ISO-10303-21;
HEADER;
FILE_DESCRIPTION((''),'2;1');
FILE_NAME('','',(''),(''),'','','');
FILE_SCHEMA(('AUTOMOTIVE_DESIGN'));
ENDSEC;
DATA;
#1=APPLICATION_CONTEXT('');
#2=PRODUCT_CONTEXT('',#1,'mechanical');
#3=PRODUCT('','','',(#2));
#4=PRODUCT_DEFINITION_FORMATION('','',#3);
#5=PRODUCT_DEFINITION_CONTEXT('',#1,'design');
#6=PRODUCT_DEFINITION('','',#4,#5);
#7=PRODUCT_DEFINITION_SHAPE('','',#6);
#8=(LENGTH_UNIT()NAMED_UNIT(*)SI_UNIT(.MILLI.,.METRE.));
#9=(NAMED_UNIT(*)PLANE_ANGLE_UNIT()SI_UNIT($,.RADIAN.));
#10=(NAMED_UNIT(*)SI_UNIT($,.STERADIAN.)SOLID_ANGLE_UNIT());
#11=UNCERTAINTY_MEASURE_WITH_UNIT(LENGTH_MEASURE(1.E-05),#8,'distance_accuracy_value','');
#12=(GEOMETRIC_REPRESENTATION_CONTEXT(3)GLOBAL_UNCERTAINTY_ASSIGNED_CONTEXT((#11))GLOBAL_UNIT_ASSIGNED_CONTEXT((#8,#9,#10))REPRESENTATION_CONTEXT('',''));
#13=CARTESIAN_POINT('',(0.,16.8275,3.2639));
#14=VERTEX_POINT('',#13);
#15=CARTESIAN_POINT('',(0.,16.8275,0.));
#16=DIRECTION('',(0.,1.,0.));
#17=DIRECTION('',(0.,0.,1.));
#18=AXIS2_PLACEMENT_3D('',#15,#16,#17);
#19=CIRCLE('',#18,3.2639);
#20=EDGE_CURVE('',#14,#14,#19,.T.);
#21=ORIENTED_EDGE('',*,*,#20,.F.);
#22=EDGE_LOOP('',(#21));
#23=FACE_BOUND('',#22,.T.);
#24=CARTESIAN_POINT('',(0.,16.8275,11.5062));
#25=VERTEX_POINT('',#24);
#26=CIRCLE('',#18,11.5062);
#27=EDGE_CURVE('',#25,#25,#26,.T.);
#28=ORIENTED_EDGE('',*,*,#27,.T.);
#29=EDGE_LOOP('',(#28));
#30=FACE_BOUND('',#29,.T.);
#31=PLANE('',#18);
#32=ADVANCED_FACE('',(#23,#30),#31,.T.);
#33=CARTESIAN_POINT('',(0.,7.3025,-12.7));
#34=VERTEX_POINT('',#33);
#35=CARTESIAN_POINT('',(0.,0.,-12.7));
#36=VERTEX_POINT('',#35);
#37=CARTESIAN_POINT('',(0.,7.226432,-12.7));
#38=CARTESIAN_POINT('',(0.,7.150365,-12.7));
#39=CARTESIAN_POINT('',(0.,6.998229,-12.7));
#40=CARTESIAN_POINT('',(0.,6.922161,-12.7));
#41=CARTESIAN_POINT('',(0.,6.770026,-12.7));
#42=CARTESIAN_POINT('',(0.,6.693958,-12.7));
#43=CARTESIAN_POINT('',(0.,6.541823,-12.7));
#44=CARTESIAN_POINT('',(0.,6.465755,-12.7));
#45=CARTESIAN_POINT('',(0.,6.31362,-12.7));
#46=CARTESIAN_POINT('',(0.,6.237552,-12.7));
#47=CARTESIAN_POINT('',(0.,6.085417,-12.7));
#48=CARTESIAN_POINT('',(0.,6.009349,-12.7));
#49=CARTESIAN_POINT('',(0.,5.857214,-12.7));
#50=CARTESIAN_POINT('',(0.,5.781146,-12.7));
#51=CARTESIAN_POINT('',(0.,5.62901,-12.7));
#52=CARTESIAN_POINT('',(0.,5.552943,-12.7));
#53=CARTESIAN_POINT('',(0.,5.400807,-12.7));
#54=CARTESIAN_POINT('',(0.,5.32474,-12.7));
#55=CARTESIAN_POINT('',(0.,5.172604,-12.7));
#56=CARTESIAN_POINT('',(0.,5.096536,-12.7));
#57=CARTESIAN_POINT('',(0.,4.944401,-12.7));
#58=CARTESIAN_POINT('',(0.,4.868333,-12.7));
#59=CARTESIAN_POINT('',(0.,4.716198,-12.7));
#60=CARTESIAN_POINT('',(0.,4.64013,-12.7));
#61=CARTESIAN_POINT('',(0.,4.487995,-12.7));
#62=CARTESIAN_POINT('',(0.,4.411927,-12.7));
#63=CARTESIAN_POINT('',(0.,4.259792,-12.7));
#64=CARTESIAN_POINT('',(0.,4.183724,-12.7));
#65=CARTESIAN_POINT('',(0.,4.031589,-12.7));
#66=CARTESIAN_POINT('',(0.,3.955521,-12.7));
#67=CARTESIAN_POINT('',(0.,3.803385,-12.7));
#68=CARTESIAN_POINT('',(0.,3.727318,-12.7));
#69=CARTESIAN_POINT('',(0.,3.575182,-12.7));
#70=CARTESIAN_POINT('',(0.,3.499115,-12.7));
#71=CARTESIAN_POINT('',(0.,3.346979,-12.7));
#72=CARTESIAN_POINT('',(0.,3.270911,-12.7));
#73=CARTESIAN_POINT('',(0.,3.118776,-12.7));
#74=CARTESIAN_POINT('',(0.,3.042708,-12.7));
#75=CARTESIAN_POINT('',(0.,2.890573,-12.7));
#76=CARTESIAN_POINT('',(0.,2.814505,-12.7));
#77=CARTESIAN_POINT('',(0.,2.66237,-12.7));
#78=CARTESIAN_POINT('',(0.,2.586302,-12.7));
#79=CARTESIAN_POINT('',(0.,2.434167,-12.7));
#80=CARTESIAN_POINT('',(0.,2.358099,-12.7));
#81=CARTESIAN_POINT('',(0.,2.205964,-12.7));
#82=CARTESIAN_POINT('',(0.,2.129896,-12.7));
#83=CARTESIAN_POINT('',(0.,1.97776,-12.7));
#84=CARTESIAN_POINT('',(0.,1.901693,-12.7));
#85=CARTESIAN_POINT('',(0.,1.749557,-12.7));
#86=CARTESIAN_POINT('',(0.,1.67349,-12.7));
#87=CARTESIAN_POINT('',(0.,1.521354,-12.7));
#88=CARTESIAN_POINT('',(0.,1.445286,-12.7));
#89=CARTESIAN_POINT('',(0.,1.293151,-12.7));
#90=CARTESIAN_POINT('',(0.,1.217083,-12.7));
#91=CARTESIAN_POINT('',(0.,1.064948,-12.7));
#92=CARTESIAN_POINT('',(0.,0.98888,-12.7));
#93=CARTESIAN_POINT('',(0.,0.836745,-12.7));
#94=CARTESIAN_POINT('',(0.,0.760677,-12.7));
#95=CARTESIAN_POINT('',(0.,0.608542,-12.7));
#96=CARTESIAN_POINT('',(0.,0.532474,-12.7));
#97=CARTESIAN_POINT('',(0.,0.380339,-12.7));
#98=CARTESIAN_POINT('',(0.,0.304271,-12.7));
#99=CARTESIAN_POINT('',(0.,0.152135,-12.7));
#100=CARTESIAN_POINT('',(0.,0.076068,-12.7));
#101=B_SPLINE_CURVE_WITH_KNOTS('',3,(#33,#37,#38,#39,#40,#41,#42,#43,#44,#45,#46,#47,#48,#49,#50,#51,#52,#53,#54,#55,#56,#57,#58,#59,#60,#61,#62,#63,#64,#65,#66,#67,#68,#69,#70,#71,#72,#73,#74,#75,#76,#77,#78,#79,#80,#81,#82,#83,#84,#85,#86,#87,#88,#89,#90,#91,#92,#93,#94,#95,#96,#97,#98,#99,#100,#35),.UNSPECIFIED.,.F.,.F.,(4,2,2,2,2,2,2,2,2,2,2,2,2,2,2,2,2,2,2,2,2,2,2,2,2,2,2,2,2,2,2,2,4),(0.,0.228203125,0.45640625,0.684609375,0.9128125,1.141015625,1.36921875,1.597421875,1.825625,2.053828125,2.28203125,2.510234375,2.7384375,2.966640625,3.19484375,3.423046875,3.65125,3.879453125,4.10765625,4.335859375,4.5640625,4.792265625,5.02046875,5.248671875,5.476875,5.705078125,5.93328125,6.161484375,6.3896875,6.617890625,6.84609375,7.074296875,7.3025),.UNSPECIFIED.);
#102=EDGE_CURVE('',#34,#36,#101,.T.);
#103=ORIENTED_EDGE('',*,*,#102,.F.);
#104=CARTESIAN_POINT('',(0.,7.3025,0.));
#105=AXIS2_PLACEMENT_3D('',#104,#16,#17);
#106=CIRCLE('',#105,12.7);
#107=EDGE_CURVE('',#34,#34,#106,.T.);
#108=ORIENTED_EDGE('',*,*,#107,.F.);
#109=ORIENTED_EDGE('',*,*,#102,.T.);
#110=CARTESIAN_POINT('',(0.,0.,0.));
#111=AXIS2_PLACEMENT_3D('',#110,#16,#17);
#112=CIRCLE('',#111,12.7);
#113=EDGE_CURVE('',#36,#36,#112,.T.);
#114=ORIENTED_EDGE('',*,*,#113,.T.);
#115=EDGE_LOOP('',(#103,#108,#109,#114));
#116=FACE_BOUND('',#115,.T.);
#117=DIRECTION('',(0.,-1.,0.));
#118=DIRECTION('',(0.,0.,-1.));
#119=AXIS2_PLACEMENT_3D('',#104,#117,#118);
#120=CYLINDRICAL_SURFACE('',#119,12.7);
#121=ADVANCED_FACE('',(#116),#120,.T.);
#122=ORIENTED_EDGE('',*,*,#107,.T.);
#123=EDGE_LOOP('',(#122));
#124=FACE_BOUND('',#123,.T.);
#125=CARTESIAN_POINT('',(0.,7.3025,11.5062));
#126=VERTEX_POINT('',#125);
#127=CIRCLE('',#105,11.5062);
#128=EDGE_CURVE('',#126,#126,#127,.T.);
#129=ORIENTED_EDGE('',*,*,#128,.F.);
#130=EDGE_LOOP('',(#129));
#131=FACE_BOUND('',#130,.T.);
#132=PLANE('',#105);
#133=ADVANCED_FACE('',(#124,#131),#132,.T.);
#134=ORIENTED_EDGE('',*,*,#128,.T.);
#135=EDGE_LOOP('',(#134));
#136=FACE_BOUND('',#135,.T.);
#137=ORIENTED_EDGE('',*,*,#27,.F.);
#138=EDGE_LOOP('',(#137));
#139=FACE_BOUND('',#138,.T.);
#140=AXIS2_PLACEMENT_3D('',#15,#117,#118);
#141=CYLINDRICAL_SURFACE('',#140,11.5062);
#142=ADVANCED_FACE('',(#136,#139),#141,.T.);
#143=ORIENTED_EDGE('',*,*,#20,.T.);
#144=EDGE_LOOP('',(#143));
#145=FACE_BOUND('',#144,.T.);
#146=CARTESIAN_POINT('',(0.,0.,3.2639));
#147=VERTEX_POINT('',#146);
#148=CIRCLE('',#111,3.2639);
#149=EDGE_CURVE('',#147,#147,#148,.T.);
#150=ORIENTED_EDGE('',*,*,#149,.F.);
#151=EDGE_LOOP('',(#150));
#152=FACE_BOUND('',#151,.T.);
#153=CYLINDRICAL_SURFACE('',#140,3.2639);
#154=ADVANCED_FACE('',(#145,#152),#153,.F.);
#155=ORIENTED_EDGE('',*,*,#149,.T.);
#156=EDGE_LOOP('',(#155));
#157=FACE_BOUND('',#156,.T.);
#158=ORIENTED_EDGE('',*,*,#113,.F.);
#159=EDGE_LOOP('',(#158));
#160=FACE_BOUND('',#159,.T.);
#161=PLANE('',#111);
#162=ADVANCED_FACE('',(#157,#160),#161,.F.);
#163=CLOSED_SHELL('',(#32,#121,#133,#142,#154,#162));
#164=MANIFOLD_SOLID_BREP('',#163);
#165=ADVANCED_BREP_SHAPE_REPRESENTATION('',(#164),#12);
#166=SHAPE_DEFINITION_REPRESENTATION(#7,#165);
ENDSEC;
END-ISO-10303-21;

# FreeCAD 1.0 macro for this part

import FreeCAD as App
import Part
import Sketcher

V = App.Vector
Q = App.Units.Quantity

doc = App.newDocument("Part")
body = doc.addObject("PartDesign::Body", "Body")

sketch1 = body.newObject("Sketcher::SketchObject", "Sketch")
sketch1.AttachmentSupport = (doc.getObject("XZ_Plane"), [""])
sketch1.MapMode = "FlatFace"
sketch1.addGeometry(Part.Circle(V(0, 0, 0), V(0, 0, 1), 11.5), False)
sketch1.addGeometry(Part.Circle(V(0, 0, 0), V(0, 0, 1), 3.3), False)
sketch1.addConstraint(Sketcher.Constraint("Coincident", 0, 3, -1, 1))
sketch1.addConstraint(Sketcher.Constraint("Coincident", 1, 3, -1, 1))
sketch1.addConstraint(Sketcher.Constraint("Diameter", 0, Q("0.906 in")))
sketch1.addConstraint(Sketcher.Constraint("Diameter", 1, Q("0.257 in")))
pad1 = body.newObject("PartDesign::Pad", "Pad")
pad1.Profile = sketch1
pad1.Length = Q("0.6625 in")
pad1.Reversed = True

sketch2 = body.newObject("Sketcher::SketchObject", "Sketch001")
sketch2.AttachmentSupport = (doc.getObject("XZ_Plane"), [""])
sketch2.MapMode = "FlatFace"
sketch2.addGeometry(Part.Circle(V(0, 0, 0), V(0, 0, 1), 13), False)
sketch2.addGeometry(Part.Circle(V(0, 0, 0), V(0, 0, 1), 12), False)
sketch2.addConstraint(Sketcher.Constraint("Coincident", 0, 3, -1, 1))
sketch2.addConstraint(Sketcher.Constraint("Coincident", 1, 3, -1, 1))
sketch2.addConstraint(Sketcher.Constraint("Diameter", 0, Q("1 in")))
sketch2.addConstraint(Sketcher.Constraint("Diameter", 1, Q("0.906 in")))
pad2 = body.newObject("PartDesign::Pad", "Pad001")
pad2.Profile = sketch2
pad2.Length = Q("0.2875 in")
pad2.Reversed = True

doc.recompute()
